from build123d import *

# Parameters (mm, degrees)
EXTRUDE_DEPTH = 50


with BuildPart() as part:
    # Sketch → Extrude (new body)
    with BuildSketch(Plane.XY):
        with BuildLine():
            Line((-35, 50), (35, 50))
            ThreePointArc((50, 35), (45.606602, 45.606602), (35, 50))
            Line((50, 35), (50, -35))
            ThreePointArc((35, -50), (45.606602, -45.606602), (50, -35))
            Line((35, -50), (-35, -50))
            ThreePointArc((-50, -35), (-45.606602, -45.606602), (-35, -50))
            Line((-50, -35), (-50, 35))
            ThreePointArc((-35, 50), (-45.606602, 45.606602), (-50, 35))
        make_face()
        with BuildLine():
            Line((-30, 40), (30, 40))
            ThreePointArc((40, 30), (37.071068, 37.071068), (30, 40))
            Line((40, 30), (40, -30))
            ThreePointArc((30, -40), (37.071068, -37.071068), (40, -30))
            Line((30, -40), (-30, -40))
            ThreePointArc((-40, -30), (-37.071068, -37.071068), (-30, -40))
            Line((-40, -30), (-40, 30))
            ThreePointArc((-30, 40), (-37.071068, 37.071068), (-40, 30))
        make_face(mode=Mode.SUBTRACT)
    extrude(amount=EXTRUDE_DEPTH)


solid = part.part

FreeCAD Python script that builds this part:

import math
import FreeCAD as App
import Part
import Sketcher
from FreeCAD import Vector
Q = App.Units.Quantity

doc = App.newDocument("Part")
body = doc.addObject("PartDesign::Body", "Body")

# Sketch on XY plane
sketch1 = body.newObject("Sketcher::SketchObject", "Sketch")
sketch1.AttachmentSupport = (doc.getObject("XY_Plane"), [""])
sketch1.MapMode = "FlatFace"
sketch1.addGeometry([
    Part.LineSegment(Vector(35, 50, 0), Vector(-35, 50, 0)),  # 0
    Part.ArcOfCircle(Part.Circle(Vector(-35.000001, 35.000001, 0), Vector(0, 0, 1), 14.999999), math.radians(89.999996), math.radians(180.000004)),  # 1
    Part.LineSegment(Vector(-50, 35, 0), Vector(-50, -35, 0)),  # 2
    Part.ArcOfCircle(Part.Circle(Vector(-35.000001, -35.000001, 0), Vector(0, 0, 1), 14.999999), math.radians(179.999996), math.radians(270.000004)),  # 3
    Part.LineSegment(Vector(-35, -50, 0), Vector(35, -50, 0)),  # 4
    Part.ArcOfCircle(Part.Circle(Vector(35.000001, -35.000001, 0), Vector(0, 0, 1), 14.999999), math.radians(-90.000004), math.radians(0.000004)),  # 5
    Part.LineSegment(Vector(50, -35, 0), Vector(50, 35, 0)),  # 6
    Part.ArcOfCircle(Part.Circle(Vector(35.000001, 35.000001, 0), Vector(0, 0, 1), 14.999999), math.radians(-0.000004), math.radians(90.000004)),  # 7
    Part.LineSegment(Vector(-30, 40, 0), Vector(30, 40, 0)),  # 8
    Part.ArcOfCircle(Part.Circle(Vector(30.000001, 30.000001, 0), Vector(0, 0, 1), 9.999999), math.radians(-0.000004), math.radians(90.000004)),  # 9
    Part.LineSegment(Vector(40, 30, 0), Vector(40, -30, 0)),  # 10
    Part.ArcOfCircle(Part.Circle(Vector(30.000001, -30.000001, 0), Vector(0, 0, 1), 9.999999), math.radians(-90.000004), math.radians(0.000004)),  # 11
    Part.LineSegment(Vector(30, -40, 0), Vector(-30, -40, 0)),  # 12
    Part.ArcOfCircle(Part.Circle(Vector(-30.000001, -30.000001, 0), Vector(0, 0, 1), 9.999999), math.radians(179.999996), math.radians(270.000004)),  # 13
    Part.LineSegment(Vector(-40, -30, 0), Vector(-40, 30, 0)),  # 14
    Part.ArcOfCircle(Part.Circle(Vector(-30.000001, 30.000001, 0), Vector(0, 0, 1), 9.999999), math.radians(89.999996), math.radians(180.000004)),  # 15
], False)
sketch1.addConstraint([
    Sketcher.Constraint("Tangent", 0, 2, 1, 1),
    Sketcher.Constraint("Tangent", 1, 2, 2, 1),
    Sketcher.Constraint("Tangent", 2, 2, 3, 1),
    Sketcher.Constraint("Tangent", 3, 2, 4, 1),
    Sketcher.Constraint("Tangent", 4, 2, 5, 1),
    Sketcher.Constraint("Tangent", 5, 2, 6, 1),
    Sketcher.Constraint("Tangent", 6, 2, 7, 1),
    Sketcher.Constraint("Tangent", 7, 2, 0, 1),
    Sketcher.Constraint("Tangent", 8, 2, 9, 2),
    Sketcher.Constraint("Tangent", 9, 1, 10, 1),
    Sketcher.Constraint("Tangent", 10, 2, 11, 2),
    Sketcher.Constraint("Tangent", 11, 1, 12, 1),
    Sketcher.Constraint("Tangent", 12, 2, 13, 2),
    Sketcher.Constraint("Tangent", 13, 1, 14, 1),
    Sketcher.Constraint("Tangent", 14, 2, 15, 2),
    Sketcher.Constraint("Tangent", 15, 1, 8, 1),
    Sketcher.Constraint("Horizontal", 0),
    Sketcher.Constraint("Vertical", 2),
    Sketcher.Constraint("Horizontal", 4),
    Sketcher.Constraint("Vertical", 6),
    Sketcher.Constraint("Horizontal", 8),
    Sketcher.Constraint("Vertical", 10),
    Sketcher.Constraint("Horizontal", 12),
    Sketcher.Constraint("Vertical", 14),
    Sketcher.Constraint("Equal", 1, 3),
    Sketcher.Constraint("Equal", 3, 5),
    Sketcher.Constraint("Equal", 5, 7),
    Sketcher.Constraint("Equal", 9, 11),
    Sketcher.Constraint("Equal", 11, 13),
    Sketcher.Constraint("Equal", 13, 15),
    Sketcher.Constraint("Symmetric", 1, 3, 5, 3, -1, 1),
    Sketcher.Constraint("Symmetric", 9, 3, 13, 3, -1, 1),
    Sketcher.Constraint("Equal", 4, 2),
    Sketcher.Constraint("Equal", 12, 10),
    Sketcher.Constraint("Radius", 1, Q("14.999999 mm")),
    Sketcher.Constraint("Radius", 9, Q("9.999999 mm")),
    Sketcher.Constraint("DistanceX", 0, 2, 0, 1, Q("70 mm")),
    Sketcher.Constraint("DistanceX", 8, 1, 8, 2, Q("60 mm")),
])
pad1 = body.newObject("PartDesign::Pad", "Pad")
pad1.Profile = sketch1
pad1.Length = 50

doc.recompute()
